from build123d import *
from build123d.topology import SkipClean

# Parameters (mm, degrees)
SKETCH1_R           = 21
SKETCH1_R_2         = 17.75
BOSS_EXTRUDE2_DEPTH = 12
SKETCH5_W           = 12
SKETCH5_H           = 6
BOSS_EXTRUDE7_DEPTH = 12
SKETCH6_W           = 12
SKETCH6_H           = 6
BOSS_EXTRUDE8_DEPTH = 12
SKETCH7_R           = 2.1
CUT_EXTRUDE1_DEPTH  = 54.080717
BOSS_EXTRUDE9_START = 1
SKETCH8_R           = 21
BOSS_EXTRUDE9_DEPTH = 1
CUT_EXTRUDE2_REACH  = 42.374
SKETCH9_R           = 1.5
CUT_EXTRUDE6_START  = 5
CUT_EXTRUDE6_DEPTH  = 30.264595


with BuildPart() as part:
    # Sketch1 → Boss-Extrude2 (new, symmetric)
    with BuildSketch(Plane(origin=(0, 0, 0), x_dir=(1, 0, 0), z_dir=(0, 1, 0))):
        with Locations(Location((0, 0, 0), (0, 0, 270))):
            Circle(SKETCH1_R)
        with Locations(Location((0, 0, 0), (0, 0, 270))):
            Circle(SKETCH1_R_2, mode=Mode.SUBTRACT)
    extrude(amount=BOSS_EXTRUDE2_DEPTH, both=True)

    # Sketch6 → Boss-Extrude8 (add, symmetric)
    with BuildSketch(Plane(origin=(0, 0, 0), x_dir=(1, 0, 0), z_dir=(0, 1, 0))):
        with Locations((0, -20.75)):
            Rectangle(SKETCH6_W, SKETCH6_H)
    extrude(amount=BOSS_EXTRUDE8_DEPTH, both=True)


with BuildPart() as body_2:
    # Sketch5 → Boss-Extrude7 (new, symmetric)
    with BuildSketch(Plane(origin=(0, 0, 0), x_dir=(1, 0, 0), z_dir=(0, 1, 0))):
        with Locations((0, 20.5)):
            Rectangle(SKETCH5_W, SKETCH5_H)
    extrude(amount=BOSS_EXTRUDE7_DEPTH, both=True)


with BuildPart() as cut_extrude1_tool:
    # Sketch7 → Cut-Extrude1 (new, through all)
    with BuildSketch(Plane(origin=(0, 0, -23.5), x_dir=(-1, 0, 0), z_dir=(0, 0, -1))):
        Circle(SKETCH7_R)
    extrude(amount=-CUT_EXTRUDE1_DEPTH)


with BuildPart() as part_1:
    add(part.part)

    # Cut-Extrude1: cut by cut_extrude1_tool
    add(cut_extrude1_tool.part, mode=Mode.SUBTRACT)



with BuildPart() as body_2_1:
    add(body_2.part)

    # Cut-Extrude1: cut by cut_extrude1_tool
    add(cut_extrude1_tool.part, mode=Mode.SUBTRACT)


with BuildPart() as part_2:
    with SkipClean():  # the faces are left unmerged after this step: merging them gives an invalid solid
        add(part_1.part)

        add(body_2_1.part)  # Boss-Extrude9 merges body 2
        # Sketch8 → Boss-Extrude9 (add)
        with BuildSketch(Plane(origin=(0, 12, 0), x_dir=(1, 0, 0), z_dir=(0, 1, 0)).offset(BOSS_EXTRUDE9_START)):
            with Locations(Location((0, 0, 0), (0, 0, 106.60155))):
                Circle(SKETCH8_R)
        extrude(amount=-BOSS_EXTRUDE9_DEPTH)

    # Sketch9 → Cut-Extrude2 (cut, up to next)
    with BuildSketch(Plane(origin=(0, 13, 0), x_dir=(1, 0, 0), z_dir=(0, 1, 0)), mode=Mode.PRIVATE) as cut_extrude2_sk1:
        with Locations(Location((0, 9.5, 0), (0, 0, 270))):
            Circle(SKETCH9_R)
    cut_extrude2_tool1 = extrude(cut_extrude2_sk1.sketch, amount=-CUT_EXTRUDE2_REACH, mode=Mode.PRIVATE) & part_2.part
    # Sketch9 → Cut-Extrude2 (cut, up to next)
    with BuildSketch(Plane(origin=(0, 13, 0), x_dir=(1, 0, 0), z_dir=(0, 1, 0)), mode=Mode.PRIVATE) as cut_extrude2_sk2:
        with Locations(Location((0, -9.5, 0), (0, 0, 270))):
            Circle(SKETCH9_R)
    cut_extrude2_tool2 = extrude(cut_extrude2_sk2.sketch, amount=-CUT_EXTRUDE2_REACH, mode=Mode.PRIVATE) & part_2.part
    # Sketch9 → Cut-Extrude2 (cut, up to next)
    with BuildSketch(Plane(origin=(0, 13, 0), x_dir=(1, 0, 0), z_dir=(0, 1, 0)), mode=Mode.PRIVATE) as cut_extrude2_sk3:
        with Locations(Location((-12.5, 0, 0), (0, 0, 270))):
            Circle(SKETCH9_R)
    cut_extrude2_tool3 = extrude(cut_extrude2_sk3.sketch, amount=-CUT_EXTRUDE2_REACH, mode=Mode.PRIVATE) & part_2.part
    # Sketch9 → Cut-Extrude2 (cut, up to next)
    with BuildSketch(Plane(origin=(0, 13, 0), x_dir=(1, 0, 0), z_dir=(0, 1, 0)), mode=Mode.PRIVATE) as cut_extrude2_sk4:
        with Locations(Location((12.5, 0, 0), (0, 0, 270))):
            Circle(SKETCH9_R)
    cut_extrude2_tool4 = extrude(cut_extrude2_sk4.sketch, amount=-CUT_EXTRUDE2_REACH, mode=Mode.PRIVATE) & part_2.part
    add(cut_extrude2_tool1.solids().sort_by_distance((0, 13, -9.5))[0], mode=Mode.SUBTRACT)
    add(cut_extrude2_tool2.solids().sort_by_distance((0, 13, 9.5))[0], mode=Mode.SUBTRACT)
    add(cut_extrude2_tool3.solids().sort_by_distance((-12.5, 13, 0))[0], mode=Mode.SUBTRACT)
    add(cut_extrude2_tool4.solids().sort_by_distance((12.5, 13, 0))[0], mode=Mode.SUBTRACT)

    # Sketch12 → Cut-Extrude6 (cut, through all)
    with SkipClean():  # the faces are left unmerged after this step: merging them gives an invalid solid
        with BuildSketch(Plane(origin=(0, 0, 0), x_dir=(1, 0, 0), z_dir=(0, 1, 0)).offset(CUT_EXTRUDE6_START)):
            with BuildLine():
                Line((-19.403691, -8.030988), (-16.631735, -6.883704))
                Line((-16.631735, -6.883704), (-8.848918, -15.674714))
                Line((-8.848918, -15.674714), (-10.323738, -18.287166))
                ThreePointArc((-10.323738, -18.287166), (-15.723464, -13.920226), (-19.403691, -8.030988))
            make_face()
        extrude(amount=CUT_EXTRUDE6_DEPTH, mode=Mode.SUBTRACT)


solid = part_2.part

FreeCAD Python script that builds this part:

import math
import FreeCAD as App
import Part
import Sketcher
from FreeCAD import Vector
Q = App.Units.Quantity

doc = App.newDocument("Part")
body = doc.addObject("PartDesign::Body", "Body")

# Sketch on XZ plane
sketch1 = doc.addObject("Sketcher::SketchObject", "Sketch")
body.addObject(sketch1)
sketch1.AttachmentSupport = (doc.XZ_Plane, [""])
sketch1.MapMode = "FlatFace"
sketch1.addGeometry(Part.Circle(Vector(0, 0, 0), Vector(0, 0, 1), 21), False)
sketch1.addGeometry(Part.Circle(Vector(0, 0, 0), Vector(0, 0, 1), 18), False)
sketch1.addConstraint(Sketcher.Constraint("Coincident", 0, 3, -1, 1))
sketch1.addConstraint(Sketcher.Constraint("Coincident", 1, 3, -1, 1))
sketch1.addConstraint(Sketcher.Constraint("Diameter", 0, Q("42 mm")))
sketch1.addConstraint(Sketcher.Constraint("Diameter", 1, Q("35.5 mm")))
pad1 = doc.addObject("PartDesign::Pad", "Pad")
body.addObject(pad1)
pad1.Profile = sketch1
pad1.Length = 24
pad1.Midplane = True

# Sketch on XZ plane
sketch2 = doc.addObject("Sketcher::SketchObject", "Sketch001")
body.addObject(sketch2)
sketch2.AttachmentSupport = (doc.XZ_Plane, [""])
sketch2.MapMode = "FlatFace"
sketch2.addGeometry(Part.LineSegment(Vector(-6, 18, 0), Vector(-6, 24, 0)), False)
sketch2.addGeometry(Part.LineSegment(Vector(-6, 24, 0), Vector(6, 24, 0)), False)
sketch2.addGeometry(Part.LineSegment(Vector(6, 24, 0), Vector(6, 18, 0)), False)
sketch2.addGeometry(Part.LineSegment(Vector(6, 18, 0), Vector(-6, 18, 0)), False)
sketch2.addConstraint(Sketcher.Constraint("Coincident", 0, 2, 1, 1))
sketch2.addConstraint(Sketcher.Constraint("Coincident", 1, 2, 2, 1))
sketch2.addConstraint(Sketcher.Constraint("Coincident", 2, 2, 3, 1))
sketch2.addConstraint(Sketcher.Constraint("Coincident", 3, 2, 0, 1))
sketch2.addConstraint(Sketcher.Constraint("Vertical", 0))
sketch2.addConstraint(Sketcher.Constraint("Horizontal", 1))
sketch2.addConstraint(Sketcher.Constraint("Vertical", 2))
sketch2.addConstraint(Sketcher.Constraint("Horizontal", 3))
sketch2.addConstraint(Sketcher.Constraint("DistanceX", 1, 1, 1, 2, Q("12 mm")))
sketch2.addConstraint(Sketcher.Constraint("DistanceY", 0, 1, 0, 2, Q("6 mm")))
sketch2.addConstraint(Sketcher.Constraint("DistanceX", 0, 2, -1, 1, Q("6 mm")))
sketch2.addConstraint(Sketcher.Constraint("DistanceY", -1, 1, 0, 2, Q("23.75 mm")))
pad2 = doc.addObject("PartDesign::Pad", "Pad001")
body.addObject(pad2)
pad2.Profile = sketch2
pad2.Length = 24
pad2.Midplane = True
body2 = doc.addObject("PartDesign::Body", "Body001")

# Sketch on XZ plane
sketch3 = doc.addObject("Sketcher::SketchObject", "Sketch002")
body2.addObject(sketch3)
sketch3.AttachmentSupport = (doc.getObject("XZ_Plane001"), [""])
sketch3.MapMode = "FlatFace"
sketch3.addGeometry(Part.LineSegment(Vector(-6, -24, 0), Vector(-6, -18, 0)), False)
sketch3.addGeometry(Part.LineSegment(Vector(-6, -18, 0), Vector(6, -18, 0)), False)
sketch3.addGeometry(Part.LineSegment(Vector(6, -18, 0), Vector(6, -24, 0)), False)
sketch3.addGeometry(Part.LineSegment(Vector(6, -24, 0), Vector(-6, -24, 0)), False)
sketch3.addConstraint(Sketcher.Constraint("Coincident", 0, 2, 1, 1))
sketch3.addConstraint(Sketcher.Constraint("Coincident", 1, 2, 2, 1))
sketch3.addConstraint(Sketcher.Constraint("Coincident", 2, 2, 3, 1))
sketch3.addConstraint(Sketcher.Constraint("Coincident", 3, 2, 0, 1))
sketch3.addConstraint(Sketcher.Constraint("Vertical", 0))
sketch3.addConstraint(Sketcher.Constraint("Horizontal", 1))
sketch3.addConstraint(Sketcher.Constraint("Vertical", 2))
sketch3.addConstraint(Sketcher.Constraint("Horizontal", 3))
sketch3.addConstraint(Sketcher.Constraint("DistanceX", 1, 1, 1, 2, Q("12 mm")))
sketch3.addConstraint(Sketcher.Constraint("DistanceY", 0, 1, 0, 2, Q("6 mm")))
sketch3.addConstraint(Sketcher.Constraint("DistanceX", 0, 2, -1, 1, Q("6 mm")))
sketch3.addConstraint(Sketcher.Constraint("DistanceY", 0, 2, -1, 1, Q("17.5 mm")))
pad3 = doc.addObject("PartDesign::Pad", "Pad002")
body2.addObject(pad3)
pad3.Profile = sketch3
pad3.Length = 24
pad3.Midplane = True
body3 = doc.addObject("PartDesign::Body", "Body002")

# Sketch on XY plane
sketch4 = doc.addObject("Sketcher::SketchObject", "Sketch003")
body3.addObject(sketch4)
sketch4.AttachmentSupport = (doc.getObject("XY_Plane002"), [""])
sketch4.MapMode = "FlatFace"
sketch4.AttachmentOffset = App.Placement(Vector(0, 0, -23.5), App.Rotation())
sketch4.addGeometry(Part.Circle(Vector(0, 0, 0), Vector(0, 0, 1), 2.1), False)
sketch4.addConstraint(Sketcher.Constraint("Coincident", 0, 3, -1, 1))
sketch4.addConstraint(Sketcher.Constraint("Diameter", 0, Q("4.2 mm")))
pad4 = doc.addObject("PartDesign::Pad", "Pad003")
body3.addObject(pad4)
pad4.Profile = sketch4
pad4.Length = 54.080717
doc.recompute()

body4 = doc.addObject("PartDesign::Body", "Body003")
body4.BaseFeature = body3
boolean = doc.addObject("PartDesign::Boolean", "Boolean")
body.addObject(boolean)
boolean.Type = "Cut"
boolean.addObjects([body4])
doc.recompute()

boolean2 = doc.addObject("PartDesign::Boolean", "Boolean001")
body2.addObject(boolean2)
boolean2.Type = "Cut"
boolean2.addObjects([body3])
doc.recompute()

boolean3 = doc.addObject("PartDesign::Boolean", "Boolean002")
body.addObject(boolean3)
boolean3.Type = "Fuse"
boolean3.addObjects([body2])

# Sketch on XZ plane
sketch5 = doc.addObject("Sketcher::SketchObject", "Sketch004")
body.addObject(sketch5)
sketch5.AttachmentSupport = (doc.XZ_Plane, [""])
sketch5.MapMode = "FlatFace"
sketch5.AttachmentOffset = App.Placement(Vector(0, 0, -13), App.Rotation())
sketch5.addGeometry(Part.Circle(Vector(0, 0, 0), Vector(0, 0, 1), 21), False)
sketch5.addConstraint(Sketcher.Constraint("Coincident", 0, 3, -1, 1))
sketch5.addConstraint(Sketcher.Constraint("Diameter", 0, Q("42 mm")))
pad5 = doc.addObject("PartDesign::Pad", "Pad004")
body.addObject(pad5)
pad5.Profile = sketch5
pad5.Length = 1

# Sketch on XZ plane
sketch6 = doc.addObject("Sketcher::SketchObject", "Sketch005")
body.addObject(sketch6)
sketch6.AttachmentSupport = (doc.XZ_Plane, [""])
sketch6.MapMode = "FlatFace"
sketch6.AttachmentOffset = App.Placement(Vector(0, 0, -13), App.Rotation())
sketch6.addGeometry(Part.Circle(Vector(0, -9.5, 0), Vector(0, 0, 1), 1.5), False)
sketch6.addConstraint(Sketcher.Constraint("PointOnObject", 0, 3, -2))
sketch6.addConstraint(Sketcher.Constraint("Diameter", 0, Q("3 mm")))
sketch6.addConstraint(Sketcher.Constraint("DistanceY", 0, 3, -1, 1, Q("9.5 mm")))
pocket1 = doc.addObject("PartDesign::Pocket", "Pocket")
body.addObject(pocket1)
pocket1.Profile = sketch6
pocket1.Type = "UpToFirst"
pocket1.Reversed = True

# Sketch on XZ plane
sketch7 = doc.addObject("Sketcher::SketchObject", "Sketch006")
body.addObject(sketch7)
sketch7.AttachmentSupport = (doc.XZ_Plane, [""])
sketch7.MapMode = "FlatFace"
sketch7.AttachmentOffset = App.Placement(Vector(0, 0, -13), App.Rotation())
sketch7.addGeometry(Part.Circle(Vector(0, 9.5, 0), Vector(0, 0, 1), 1.5), False)
sketch7.addConstraint(Sketcher.Constraint("PointOnObject", 0, 3, -2))
sketch7.addConstraint(Sketcher.Constraint("Diameter", 0, Q("3 mm")))
sketch7.addConstraint(Sketcher.Constraint("DistanceY", -1, 1, 0, 3, Q("9.5 mm")))
pocket2 = doc.addObject("PartDesign::Pocket", "Pocket001")
body.addObject(pocket2)
pocket2.Profile = sketch7
pocket2.Type = "UpToFirst"
pocket2.Reversed = True

# Sketch on XZ plane
sketch8 = doc.addObject("Sketcher::SketchObject", "Sketch007")
body.addObject(sketch8)
sketch8.AttachmentSupport = (doc.XZ_Plane, [""])
sketch8.MapMode = "FlatFace"
sketch8.AttachmentOffset = App.Placement(Vector(0, 0, -13), App.Rotation())
sketch8.addGeometry(Part.Circle(Vector(-12.5, 0, 0), Vector(0, 0, 1), 1.5), False)
sketch8.addConstraint(Sketcher.Constraint("PointOnObject", 0, 3, -1))
sketch8.addConstraint(Sketcher.Constraint("Diameter", 0, Q("3 mm")))
sketch8.addConstraint(Sketcher.Constraint("DistanceX", 0, 3, -1, 1, Q("12.5 mm")))
pocket3 = doc.addObject("PartDesign::Pocket", "Pocket002")
body.addObject(pocket3)
pocket3.Profile = sketch8
pocket3.Type = "UpToFirst"
pocket3.Reversed = True

# Sketch on XZ plane
sketch9 = doc.addObject("Sketcher::SketchObject", "Sketch008")
body.addObject(sketch9)
sketch9.AttachmentSupport = (doc.XZ_Plane, [""])
sketch9.MapMode = "FlatFace"
sketch9.AttachmentOffset = App.Placement(Vector(0, 0, -13), App.Rotation())
sketch9.addGeometry(Part.Circle(Vector(12.5, 0, 0), Vector(0, 0, 1), 1.5), False)
sketch9.addConstraint(Sketcher.Constraint("PointOnObject", 0, 3, -1))
sketch9.addConstraint(Sketcher.Constraint("Diameter", 0, Q("3 mm")))
sketch9.addConstraint(Sketcher.Constraint("DistanceX", -1, 1, 0, 3, Q("12.5 mm")))
pocket4 = doc.addObject("PartDesign::Pocket", "Pocket003")
body.addObject(pocket4)
pocket4.Profile = sketch9
pocket4.Type = "UpToFirst"
pocket4.Reversed = True

# Sketch on XZ plane
sketch10 = doc.addObject("Sketcher::SketchObject", "Sketch009")
body.addObject(sketch10)
sketch10.AttachmentSupport = (doc.XZ_Plane, [""])
sketch10.MapMode = "FlatFace"
sketch10.AttachmentOffset = App.Placement(Vector(0, 0, -5), App.Rotation())
sketch10.addGeometry(Part.LineSegment(Vector(-16.6, 6.9, 0), Vector(-19.4, 8, 0)), False)
sketch10.addGeometry(Part.ArcOfCircle(Part.Circle(Vector(0, 0, 0), Vector(0, 0, 1), 21), math.radians(119), math.radians(158)), False)
sketch10.addGeometry(Part.LineSegment(Vector(-10.3, 18.3, 0), Vector(-8.8, 15.7, 0)), False)
sketch10.addGeometry(Part.LineSegment(Vector(-8.8, 15.7, 0), Vector(-16.6, 6.9, 0)), False)
sketch10.addConstraint(Sketcher.Constraint("Coincident", 0, 2, 1, 2))
sketch10.addConstraint(Sketcher.Constraint("Coincident", 1, 1, 2, 1))
sketch10.addConstraint(Sketcher.Constraint("Coincident", 2, 2, 3, 1))
sketch10.addConstraint(Sketcher.Constraint("Coincident", 3, 2, 0, 1))
sketch10.addConstraint(Sketcher.Constraint("Coincident", 1, 3, -1, 1))
sketch10.addConstraint(Sketcher.Constraint("Equal", 0, 2))
sketch10.addConstraint(Sketcher.Constraint("Distance", 0, Q("3 mm")))
sketch10.addConstraint(Sketcher.Constraint("Radius", 1, Q("20.999995 mm")))
sketch10.addConstraint(Sketcher.Constraint("DistanceY", 1, 3, 3, 2, Q("6.8837 mm")))
sketch10.addConstraint(Sketcher.Constraint("Distance", 3, Q("11.741128 mm")))
sketch10.addConstraint(Sketcher.Constraint("DistanceX", 0, 2, -1, 1, Q("19.403691 mm")))
sketch10.addConstraint(Sketcher.Constraint("DistanceX", 1, 1, -1, 1, Q("10.323738 mm")))
pocket5 = doc.addObject("PartDesign::Pocket", "Pocket004")
body.addObject(pocket5)
pocket5.Profile = sketch10
pocket5.Type = "ThroughAll"

doc.recompute()
